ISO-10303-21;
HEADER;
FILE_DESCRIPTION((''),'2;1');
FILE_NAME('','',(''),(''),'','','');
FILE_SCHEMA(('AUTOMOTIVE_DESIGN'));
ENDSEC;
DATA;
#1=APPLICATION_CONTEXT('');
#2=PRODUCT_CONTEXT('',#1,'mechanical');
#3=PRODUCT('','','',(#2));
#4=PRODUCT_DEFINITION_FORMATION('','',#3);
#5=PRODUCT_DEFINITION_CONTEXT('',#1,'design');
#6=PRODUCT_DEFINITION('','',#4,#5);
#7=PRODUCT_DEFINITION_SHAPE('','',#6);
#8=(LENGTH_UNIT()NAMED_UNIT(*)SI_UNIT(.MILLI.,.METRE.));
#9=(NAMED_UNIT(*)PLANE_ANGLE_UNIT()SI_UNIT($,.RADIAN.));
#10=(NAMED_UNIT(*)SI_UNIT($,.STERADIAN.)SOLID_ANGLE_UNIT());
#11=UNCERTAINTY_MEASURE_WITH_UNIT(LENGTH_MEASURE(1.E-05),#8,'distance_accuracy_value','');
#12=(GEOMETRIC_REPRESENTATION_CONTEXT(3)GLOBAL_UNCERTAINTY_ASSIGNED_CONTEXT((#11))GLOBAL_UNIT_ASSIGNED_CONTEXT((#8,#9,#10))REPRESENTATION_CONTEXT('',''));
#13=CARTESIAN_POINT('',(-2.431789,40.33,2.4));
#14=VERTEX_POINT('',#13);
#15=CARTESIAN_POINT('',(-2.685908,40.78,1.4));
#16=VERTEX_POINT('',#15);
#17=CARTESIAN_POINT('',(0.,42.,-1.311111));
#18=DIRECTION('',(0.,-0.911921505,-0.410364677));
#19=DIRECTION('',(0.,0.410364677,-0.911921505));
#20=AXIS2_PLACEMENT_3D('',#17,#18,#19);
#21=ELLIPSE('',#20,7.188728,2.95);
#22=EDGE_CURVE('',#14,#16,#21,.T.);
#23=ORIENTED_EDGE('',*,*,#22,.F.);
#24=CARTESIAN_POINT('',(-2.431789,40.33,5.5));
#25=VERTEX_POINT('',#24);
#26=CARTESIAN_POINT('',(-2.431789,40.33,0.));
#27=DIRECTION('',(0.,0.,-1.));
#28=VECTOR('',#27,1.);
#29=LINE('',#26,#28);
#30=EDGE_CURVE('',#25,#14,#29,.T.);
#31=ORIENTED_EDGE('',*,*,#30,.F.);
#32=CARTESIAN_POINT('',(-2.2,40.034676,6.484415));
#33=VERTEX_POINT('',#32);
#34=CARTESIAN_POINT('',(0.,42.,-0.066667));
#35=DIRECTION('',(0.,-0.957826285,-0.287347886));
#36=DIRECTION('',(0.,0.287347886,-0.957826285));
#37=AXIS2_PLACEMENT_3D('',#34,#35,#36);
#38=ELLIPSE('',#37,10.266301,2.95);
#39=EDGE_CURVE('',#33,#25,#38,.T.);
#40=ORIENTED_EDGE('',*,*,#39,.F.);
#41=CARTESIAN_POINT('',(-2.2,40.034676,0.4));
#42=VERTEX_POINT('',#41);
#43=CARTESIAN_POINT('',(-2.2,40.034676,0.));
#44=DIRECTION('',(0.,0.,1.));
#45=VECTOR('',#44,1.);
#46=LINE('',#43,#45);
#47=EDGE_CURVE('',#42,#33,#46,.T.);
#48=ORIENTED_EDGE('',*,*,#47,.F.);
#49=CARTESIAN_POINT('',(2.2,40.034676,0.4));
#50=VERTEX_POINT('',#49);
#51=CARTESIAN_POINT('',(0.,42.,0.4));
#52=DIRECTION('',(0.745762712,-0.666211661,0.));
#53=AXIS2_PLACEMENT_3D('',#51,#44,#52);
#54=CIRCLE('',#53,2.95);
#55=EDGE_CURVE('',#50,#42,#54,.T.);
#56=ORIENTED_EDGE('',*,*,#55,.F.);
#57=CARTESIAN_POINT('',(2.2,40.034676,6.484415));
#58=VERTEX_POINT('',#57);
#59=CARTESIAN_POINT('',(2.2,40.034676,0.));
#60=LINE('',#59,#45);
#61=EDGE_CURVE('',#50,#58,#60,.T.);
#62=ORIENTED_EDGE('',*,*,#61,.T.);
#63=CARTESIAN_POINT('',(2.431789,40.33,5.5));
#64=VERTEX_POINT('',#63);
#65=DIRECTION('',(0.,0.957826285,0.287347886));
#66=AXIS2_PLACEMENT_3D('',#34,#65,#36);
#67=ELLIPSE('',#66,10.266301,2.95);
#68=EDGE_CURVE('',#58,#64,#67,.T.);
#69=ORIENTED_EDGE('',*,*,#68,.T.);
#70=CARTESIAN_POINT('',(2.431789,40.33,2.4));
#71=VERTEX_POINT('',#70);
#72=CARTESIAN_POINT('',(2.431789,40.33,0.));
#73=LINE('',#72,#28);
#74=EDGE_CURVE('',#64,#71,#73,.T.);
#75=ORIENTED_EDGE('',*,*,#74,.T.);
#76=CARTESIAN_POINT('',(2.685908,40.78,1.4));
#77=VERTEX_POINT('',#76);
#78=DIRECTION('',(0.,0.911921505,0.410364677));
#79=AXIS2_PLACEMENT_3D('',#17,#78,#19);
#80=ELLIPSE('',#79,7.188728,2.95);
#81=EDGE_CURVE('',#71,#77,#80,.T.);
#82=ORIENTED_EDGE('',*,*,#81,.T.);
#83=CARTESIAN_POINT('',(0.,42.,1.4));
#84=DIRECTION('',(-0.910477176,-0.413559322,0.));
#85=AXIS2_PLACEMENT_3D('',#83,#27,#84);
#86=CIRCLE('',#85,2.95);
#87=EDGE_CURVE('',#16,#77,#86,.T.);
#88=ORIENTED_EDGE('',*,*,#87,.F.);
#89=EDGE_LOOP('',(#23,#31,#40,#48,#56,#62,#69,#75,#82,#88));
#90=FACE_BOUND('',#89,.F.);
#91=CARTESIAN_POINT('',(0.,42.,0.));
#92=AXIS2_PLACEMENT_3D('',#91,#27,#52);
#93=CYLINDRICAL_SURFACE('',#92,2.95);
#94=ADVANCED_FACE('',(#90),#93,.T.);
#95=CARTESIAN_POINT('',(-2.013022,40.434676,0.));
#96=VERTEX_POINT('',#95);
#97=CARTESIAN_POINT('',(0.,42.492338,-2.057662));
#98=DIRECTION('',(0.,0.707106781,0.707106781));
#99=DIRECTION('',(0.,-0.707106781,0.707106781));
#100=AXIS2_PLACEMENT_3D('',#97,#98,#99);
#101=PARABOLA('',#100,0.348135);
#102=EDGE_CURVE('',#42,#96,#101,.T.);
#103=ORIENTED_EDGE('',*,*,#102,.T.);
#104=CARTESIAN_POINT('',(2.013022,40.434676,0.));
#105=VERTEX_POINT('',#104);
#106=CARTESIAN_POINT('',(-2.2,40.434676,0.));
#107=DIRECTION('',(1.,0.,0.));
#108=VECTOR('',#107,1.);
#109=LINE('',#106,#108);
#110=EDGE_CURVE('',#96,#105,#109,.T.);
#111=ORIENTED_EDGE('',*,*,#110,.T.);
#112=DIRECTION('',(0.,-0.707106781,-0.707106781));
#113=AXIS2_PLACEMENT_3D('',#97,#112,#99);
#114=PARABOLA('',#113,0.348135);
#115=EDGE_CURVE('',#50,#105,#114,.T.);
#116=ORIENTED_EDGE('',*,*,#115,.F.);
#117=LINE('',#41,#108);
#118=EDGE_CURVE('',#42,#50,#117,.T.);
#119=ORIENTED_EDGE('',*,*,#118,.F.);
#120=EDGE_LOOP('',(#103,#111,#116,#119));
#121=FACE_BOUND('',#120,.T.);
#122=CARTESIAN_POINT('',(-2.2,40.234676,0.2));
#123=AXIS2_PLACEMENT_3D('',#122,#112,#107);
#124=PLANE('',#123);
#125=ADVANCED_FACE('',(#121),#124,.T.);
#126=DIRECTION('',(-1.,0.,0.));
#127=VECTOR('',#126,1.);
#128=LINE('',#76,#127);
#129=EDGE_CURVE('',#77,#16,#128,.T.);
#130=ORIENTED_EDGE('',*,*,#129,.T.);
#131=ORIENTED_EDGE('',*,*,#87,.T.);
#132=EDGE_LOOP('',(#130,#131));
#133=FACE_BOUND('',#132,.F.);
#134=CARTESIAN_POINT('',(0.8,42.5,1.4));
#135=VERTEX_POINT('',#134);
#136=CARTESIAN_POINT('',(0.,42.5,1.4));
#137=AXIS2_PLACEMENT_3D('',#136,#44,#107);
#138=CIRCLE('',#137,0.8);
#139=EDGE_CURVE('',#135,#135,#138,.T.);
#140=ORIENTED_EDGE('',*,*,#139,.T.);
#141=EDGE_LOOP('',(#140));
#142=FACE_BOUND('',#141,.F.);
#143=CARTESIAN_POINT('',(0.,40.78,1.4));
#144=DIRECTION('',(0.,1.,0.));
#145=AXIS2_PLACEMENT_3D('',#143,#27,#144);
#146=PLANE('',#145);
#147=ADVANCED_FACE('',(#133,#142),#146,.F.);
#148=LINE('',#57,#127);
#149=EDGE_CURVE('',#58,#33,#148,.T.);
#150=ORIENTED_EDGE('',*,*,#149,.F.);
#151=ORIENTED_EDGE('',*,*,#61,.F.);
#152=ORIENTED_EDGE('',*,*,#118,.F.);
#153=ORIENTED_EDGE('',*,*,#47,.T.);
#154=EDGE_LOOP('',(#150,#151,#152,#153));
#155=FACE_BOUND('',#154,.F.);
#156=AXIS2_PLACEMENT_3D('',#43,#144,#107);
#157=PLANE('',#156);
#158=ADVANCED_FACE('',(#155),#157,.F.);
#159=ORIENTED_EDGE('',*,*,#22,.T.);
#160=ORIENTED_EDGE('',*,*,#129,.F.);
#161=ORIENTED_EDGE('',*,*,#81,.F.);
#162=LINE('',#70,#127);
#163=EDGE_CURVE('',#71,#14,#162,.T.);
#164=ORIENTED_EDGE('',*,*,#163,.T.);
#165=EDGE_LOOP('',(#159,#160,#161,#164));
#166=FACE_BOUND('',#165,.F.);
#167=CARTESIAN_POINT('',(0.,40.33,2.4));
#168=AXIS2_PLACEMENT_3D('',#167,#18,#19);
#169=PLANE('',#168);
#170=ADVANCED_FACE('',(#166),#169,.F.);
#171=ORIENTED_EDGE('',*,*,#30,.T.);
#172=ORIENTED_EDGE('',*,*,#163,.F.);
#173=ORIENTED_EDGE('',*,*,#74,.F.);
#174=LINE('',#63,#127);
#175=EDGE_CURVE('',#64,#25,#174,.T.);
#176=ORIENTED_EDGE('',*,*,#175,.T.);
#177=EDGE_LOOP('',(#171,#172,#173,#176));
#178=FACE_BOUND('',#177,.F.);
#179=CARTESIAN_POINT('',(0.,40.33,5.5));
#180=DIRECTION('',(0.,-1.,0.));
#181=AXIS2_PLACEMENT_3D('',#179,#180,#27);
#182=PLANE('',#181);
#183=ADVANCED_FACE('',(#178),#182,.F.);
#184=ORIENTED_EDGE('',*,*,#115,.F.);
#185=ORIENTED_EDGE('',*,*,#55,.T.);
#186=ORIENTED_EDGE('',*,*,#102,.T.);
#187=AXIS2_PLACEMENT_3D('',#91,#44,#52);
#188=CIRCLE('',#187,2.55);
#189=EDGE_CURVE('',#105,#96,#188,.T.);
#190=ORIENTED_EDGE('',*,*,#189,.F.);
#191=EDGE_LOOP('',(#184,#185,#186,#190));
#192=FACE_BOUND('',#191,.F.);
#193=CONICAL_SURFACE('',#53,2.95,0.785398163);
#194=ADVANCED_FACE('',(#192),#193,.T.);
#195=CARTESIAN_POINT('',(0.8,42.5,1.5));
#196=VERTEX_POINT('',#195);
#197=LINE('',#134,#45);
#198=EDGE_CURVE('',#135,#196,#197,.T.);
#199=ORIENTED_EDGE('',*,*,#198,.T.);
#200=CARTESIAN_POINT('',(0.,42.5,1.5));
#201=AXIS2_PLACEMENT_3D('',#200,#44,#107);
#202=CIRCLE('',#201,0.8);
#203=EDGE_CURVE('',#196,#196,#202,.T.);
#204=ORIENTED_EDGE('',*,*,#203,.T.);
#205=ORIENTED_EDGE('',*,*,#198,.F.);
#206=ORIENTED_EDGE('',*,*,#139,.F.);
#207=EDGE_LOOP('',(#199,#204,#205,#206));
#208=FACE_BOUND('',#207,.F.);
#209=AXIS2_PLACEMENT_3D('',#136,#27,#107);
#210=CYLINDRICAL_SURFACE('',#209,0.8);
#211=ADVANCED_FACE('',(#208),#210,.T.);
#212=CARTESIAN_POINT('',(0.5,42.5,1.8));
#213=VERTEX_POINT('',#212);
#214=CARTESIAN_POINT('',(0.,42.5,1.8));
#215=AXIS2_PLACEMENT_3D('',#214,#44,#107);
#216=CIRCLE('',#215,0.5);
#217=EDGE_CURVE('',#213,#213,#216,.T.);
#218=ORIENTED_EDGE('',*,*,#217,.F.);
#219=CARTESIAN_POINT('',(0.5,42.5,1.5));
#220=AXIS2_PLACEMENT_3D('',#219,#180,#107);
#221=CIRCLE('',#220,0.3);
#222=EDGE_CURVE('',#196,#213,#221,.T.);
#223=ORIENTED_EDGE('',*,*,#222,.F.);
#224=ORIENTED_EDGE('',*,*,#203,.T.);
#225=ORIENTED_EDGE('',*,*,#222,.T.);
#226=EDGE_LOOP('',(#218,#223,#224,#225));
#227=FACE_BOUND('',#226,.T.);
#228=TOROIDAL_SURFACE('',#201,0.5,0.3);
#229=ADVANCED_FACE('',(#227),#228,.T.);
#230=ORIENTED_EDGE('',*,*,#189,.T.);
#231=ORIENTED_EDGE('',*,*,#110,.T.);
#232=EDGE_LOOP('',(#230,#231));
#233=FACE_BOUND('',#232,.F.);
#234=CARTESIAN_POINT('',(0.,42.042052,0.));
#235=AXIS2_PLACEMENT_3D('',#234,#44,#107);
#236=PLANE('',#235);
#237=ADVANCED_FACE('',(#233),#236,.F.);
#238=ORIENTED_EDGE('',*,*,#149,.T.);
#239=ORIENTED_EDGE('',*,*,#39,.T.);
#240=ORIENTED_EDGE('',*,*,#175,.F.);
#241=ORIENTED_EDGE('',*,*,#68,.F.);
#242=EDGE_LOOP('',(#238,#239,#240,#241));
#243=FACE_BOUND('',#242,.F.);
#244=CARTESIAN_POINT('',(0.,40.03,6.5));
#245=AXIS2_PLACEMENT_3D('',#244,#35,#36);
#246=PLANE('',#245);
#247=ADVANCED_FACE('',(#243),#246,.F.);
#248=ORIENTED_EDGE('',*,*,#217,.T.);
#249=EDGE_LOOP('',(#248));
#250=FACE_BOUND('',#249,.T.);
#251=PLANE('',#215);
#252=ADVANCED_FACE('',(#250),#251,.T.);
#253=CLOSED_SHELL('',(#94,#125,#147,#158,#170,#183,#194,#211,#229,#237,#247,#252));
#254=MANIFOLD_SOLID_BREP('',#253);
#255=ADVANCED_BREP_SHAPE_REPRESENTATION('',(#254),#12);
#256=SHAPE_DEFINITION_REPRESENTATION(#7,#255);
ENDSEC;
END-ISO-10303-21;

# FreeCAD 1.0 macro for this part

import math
import FreeCAD as App
import Part
import Sketcher
from FreeCAD import Vector
Q = App.Units.Quantity


def edges_at(feature, points):
    """Names of the edges that pass closest to the given points."""
    edges = feature.Shape.Edges
    near = lambda p: min(range(len(edges)), key=lambda i: edges[i].distToShape(Part.Vertex(*p))[0])
    return sorted({f"Edge{near(p) + 1}" for p in points})

doc = App.newDocument("Part")
body = doc.addObject("PartDesign::Body", "Body")

sketch1 = doc.addObject("Sketcher::SketchObject", "Sketch")
body.addObject(sketch1)
sketch1.AttachmentSupport = (doc.XY_Plane, [""])
sketch1.MapMode = "FlatFace"
sketch1.addGeometry([
    Part.ArcOfCircle(Part.Circle(Vector(0, 0, 0), Vector(0, 0, 1), 3), math.radians(-42), math.radians(222)),
    Part.LineSegment(Vector(-2.2, -2, 0), Vector(2.2, -2, 0)),
], False)
sketch1.addConstraint([
    Sketcher.Constraint("Coincident", 0, 1, 1, 2),
    Sketcher.Constraint("Coincident", 1, 1, 0, 2),
    Sketcher.Constraint("Horizontal", 1),
    Sketcher.Constraint("Coincident", 0, 3, -1, 1),
    Sketcher.Constraint("Radius", 0, Q("2.95 mm")),
    Sketcher.Constraint("DistanceX", 1, 1, 1, 2, Q("4.4 mm")),
])
pad1 = doc.addObject("PartDesign::Pad", "Pad")
body.addObject(pad1)
pad1.Profile = sketch1
pad1.Length = 6.5

sketch2 = doc.addObject("Sketcher::SketchObject", "Sketch001")
body.addObject(sketch2)
sketch2.AttachmentSupport = (doc.YZ_Plane, [""])
sketch2.MapMode = "FlatFace"
sketch2.addGeometry([
    Part.LineSegment(Vector(-2, 6.5, 0), Vector(-1.7, 5.5, 0)),
    Part.LineSegment(Vector(-1.7, 5.5, 0), Vector(-1.7, 2.4, 0)),
    Part.LineSegment(Vector(-1.7, 2.4, 0), Vector(-1.2, 1.4, 0)),
    Part.LineSegment(Vector(-1.2, 1.4, 0), Vector(4, 1.4, 0)),
    Part.LineSegment(Vector(4, 1.4, 0), Vector(4, 6.5, 0)),
    Part.LineSegment(Vector(4, 6.5, 0), Vector(-2, 6.5, 0)),
], False)
sketch2.addConstraint([
    Sketcher.Constraint("Coincident", 0, 2, 1, 1),
    Sketcher.Constraint("Coincident", 1, 2, 2, 1),
    Sketcher.Constraint("Coincident", 2, 2, 3, 1),
    Sketcher.Constraint("Coincident", 3, 2, 4, 1),
    Sketcher.Constraint("Coincident", 4, 2, 5, 1),
    Sketcher.Constraint("Coincident", 5, 2, 0, 1),
    Sketcher.Constraint("Vertical", 1),
    Sketcher.Constraint("Horizontal", 3),
    Sketcher.Constraint("Vertical", 4),
    Sketcher.Constraint("Horizontal", 5),
    Sketcher.Constraint("DistanceY", 1, 2, 1, 1, Q("3.1 mm")),
    Sketcher.Constraint("DistanceY", 4, 1, 4, 2, Q("5.1 mm")),
    Sketcher.Constraint("DistanceX", -1, 1, 3, 2, Q("4 mm")),
    Sketcher.Constraint("DistanceY", 2, 2, 1, 2, Q("1 mm")),
    Sketcher.Constraint("DistanceX", 3, 1, 3, 2, Q("5.22 mm")),
    Sketcher.Constraint("DistanceX", 5, 2, 5, 1, Q("5.97 mm")),
    Sketcher.Constraint("DistanceY", -1, 1, 0, 2, Q("5.5 mm")),
    Sketcher.Constraint("DistanceX", 5, 2, 0, 2, Q("0.3 mm")),
])
pocket1 = doc.addObject("PartDesign::Pocket", "Pocket")
body.addObject(pocket1)
pocket1.Profile = sketch2
pocket1.Type = "ThroughAll"
pocket1.Midplane = True

sketch3 = doc.addObject("Sketcher::SketchObject", "Sketch002")
body.addObject(sketch3)
sketch3.AttachmentSupport = (doc.XY_Plane, [""])
sketch3.MapMode = "FlatFace"
sketch3.AttachmentOffset = App.Placement(Vector(0, 0, 1.4), App.Rotation())
sketch3.addGeometry(Part.Circle(Vector(0, 0.5, 0), Vector(0, 0, 1), 0.8), False)
sketch3.addConstraint([
    Sketcher.Constraint("PointOnObject", 0, 3, -2),
    Sketcher.Constraint("Diameter", 0, Q("1.6 mm")),
    Sketcher.Constraint("DistanceY", -1, 1, 0, 3, Q("0.5 mm")),
])
pad2 = doc.addObject("PartDesign::Pad", "Pad001")
body.addObject(pad2)
pad2.Profile = sketch3
pad2.Length = 0.4
doc.recompute()

fillet = doc.addObject("PartDesign::Fillet", "Fillet")
body.addObject(fillet)
fillet.Base = (pad2, edges_at(pad2, [(-0.8, 0.5, 1.8)]))
fillet.Radius = 0.3
doc.recompute()

chamfer = doc.addObject("PartDesign::Chamfer", "Chamfer")
body.addObject(chamfer)
chamfer.Base = (fillet, edges_at(fillet, [(0, 2.95, 0), (0, -1.965, 0)]))
chamfer.Size = 0.4
body2 = doc.addObject("PartDesign::Body", "Body001")
doc.recompute()

body.Placement = App.Placement(Vector(0, 42, 0), App.Rotation(Vector(0, 0, 1), 0))
boolean = doc.addObject("PartDesign::Boolean", "Boolean")
body2.addObject(boolean)
boolean.Type = "Fuse"
boolean.addObjects([body])

doc.recompute()
